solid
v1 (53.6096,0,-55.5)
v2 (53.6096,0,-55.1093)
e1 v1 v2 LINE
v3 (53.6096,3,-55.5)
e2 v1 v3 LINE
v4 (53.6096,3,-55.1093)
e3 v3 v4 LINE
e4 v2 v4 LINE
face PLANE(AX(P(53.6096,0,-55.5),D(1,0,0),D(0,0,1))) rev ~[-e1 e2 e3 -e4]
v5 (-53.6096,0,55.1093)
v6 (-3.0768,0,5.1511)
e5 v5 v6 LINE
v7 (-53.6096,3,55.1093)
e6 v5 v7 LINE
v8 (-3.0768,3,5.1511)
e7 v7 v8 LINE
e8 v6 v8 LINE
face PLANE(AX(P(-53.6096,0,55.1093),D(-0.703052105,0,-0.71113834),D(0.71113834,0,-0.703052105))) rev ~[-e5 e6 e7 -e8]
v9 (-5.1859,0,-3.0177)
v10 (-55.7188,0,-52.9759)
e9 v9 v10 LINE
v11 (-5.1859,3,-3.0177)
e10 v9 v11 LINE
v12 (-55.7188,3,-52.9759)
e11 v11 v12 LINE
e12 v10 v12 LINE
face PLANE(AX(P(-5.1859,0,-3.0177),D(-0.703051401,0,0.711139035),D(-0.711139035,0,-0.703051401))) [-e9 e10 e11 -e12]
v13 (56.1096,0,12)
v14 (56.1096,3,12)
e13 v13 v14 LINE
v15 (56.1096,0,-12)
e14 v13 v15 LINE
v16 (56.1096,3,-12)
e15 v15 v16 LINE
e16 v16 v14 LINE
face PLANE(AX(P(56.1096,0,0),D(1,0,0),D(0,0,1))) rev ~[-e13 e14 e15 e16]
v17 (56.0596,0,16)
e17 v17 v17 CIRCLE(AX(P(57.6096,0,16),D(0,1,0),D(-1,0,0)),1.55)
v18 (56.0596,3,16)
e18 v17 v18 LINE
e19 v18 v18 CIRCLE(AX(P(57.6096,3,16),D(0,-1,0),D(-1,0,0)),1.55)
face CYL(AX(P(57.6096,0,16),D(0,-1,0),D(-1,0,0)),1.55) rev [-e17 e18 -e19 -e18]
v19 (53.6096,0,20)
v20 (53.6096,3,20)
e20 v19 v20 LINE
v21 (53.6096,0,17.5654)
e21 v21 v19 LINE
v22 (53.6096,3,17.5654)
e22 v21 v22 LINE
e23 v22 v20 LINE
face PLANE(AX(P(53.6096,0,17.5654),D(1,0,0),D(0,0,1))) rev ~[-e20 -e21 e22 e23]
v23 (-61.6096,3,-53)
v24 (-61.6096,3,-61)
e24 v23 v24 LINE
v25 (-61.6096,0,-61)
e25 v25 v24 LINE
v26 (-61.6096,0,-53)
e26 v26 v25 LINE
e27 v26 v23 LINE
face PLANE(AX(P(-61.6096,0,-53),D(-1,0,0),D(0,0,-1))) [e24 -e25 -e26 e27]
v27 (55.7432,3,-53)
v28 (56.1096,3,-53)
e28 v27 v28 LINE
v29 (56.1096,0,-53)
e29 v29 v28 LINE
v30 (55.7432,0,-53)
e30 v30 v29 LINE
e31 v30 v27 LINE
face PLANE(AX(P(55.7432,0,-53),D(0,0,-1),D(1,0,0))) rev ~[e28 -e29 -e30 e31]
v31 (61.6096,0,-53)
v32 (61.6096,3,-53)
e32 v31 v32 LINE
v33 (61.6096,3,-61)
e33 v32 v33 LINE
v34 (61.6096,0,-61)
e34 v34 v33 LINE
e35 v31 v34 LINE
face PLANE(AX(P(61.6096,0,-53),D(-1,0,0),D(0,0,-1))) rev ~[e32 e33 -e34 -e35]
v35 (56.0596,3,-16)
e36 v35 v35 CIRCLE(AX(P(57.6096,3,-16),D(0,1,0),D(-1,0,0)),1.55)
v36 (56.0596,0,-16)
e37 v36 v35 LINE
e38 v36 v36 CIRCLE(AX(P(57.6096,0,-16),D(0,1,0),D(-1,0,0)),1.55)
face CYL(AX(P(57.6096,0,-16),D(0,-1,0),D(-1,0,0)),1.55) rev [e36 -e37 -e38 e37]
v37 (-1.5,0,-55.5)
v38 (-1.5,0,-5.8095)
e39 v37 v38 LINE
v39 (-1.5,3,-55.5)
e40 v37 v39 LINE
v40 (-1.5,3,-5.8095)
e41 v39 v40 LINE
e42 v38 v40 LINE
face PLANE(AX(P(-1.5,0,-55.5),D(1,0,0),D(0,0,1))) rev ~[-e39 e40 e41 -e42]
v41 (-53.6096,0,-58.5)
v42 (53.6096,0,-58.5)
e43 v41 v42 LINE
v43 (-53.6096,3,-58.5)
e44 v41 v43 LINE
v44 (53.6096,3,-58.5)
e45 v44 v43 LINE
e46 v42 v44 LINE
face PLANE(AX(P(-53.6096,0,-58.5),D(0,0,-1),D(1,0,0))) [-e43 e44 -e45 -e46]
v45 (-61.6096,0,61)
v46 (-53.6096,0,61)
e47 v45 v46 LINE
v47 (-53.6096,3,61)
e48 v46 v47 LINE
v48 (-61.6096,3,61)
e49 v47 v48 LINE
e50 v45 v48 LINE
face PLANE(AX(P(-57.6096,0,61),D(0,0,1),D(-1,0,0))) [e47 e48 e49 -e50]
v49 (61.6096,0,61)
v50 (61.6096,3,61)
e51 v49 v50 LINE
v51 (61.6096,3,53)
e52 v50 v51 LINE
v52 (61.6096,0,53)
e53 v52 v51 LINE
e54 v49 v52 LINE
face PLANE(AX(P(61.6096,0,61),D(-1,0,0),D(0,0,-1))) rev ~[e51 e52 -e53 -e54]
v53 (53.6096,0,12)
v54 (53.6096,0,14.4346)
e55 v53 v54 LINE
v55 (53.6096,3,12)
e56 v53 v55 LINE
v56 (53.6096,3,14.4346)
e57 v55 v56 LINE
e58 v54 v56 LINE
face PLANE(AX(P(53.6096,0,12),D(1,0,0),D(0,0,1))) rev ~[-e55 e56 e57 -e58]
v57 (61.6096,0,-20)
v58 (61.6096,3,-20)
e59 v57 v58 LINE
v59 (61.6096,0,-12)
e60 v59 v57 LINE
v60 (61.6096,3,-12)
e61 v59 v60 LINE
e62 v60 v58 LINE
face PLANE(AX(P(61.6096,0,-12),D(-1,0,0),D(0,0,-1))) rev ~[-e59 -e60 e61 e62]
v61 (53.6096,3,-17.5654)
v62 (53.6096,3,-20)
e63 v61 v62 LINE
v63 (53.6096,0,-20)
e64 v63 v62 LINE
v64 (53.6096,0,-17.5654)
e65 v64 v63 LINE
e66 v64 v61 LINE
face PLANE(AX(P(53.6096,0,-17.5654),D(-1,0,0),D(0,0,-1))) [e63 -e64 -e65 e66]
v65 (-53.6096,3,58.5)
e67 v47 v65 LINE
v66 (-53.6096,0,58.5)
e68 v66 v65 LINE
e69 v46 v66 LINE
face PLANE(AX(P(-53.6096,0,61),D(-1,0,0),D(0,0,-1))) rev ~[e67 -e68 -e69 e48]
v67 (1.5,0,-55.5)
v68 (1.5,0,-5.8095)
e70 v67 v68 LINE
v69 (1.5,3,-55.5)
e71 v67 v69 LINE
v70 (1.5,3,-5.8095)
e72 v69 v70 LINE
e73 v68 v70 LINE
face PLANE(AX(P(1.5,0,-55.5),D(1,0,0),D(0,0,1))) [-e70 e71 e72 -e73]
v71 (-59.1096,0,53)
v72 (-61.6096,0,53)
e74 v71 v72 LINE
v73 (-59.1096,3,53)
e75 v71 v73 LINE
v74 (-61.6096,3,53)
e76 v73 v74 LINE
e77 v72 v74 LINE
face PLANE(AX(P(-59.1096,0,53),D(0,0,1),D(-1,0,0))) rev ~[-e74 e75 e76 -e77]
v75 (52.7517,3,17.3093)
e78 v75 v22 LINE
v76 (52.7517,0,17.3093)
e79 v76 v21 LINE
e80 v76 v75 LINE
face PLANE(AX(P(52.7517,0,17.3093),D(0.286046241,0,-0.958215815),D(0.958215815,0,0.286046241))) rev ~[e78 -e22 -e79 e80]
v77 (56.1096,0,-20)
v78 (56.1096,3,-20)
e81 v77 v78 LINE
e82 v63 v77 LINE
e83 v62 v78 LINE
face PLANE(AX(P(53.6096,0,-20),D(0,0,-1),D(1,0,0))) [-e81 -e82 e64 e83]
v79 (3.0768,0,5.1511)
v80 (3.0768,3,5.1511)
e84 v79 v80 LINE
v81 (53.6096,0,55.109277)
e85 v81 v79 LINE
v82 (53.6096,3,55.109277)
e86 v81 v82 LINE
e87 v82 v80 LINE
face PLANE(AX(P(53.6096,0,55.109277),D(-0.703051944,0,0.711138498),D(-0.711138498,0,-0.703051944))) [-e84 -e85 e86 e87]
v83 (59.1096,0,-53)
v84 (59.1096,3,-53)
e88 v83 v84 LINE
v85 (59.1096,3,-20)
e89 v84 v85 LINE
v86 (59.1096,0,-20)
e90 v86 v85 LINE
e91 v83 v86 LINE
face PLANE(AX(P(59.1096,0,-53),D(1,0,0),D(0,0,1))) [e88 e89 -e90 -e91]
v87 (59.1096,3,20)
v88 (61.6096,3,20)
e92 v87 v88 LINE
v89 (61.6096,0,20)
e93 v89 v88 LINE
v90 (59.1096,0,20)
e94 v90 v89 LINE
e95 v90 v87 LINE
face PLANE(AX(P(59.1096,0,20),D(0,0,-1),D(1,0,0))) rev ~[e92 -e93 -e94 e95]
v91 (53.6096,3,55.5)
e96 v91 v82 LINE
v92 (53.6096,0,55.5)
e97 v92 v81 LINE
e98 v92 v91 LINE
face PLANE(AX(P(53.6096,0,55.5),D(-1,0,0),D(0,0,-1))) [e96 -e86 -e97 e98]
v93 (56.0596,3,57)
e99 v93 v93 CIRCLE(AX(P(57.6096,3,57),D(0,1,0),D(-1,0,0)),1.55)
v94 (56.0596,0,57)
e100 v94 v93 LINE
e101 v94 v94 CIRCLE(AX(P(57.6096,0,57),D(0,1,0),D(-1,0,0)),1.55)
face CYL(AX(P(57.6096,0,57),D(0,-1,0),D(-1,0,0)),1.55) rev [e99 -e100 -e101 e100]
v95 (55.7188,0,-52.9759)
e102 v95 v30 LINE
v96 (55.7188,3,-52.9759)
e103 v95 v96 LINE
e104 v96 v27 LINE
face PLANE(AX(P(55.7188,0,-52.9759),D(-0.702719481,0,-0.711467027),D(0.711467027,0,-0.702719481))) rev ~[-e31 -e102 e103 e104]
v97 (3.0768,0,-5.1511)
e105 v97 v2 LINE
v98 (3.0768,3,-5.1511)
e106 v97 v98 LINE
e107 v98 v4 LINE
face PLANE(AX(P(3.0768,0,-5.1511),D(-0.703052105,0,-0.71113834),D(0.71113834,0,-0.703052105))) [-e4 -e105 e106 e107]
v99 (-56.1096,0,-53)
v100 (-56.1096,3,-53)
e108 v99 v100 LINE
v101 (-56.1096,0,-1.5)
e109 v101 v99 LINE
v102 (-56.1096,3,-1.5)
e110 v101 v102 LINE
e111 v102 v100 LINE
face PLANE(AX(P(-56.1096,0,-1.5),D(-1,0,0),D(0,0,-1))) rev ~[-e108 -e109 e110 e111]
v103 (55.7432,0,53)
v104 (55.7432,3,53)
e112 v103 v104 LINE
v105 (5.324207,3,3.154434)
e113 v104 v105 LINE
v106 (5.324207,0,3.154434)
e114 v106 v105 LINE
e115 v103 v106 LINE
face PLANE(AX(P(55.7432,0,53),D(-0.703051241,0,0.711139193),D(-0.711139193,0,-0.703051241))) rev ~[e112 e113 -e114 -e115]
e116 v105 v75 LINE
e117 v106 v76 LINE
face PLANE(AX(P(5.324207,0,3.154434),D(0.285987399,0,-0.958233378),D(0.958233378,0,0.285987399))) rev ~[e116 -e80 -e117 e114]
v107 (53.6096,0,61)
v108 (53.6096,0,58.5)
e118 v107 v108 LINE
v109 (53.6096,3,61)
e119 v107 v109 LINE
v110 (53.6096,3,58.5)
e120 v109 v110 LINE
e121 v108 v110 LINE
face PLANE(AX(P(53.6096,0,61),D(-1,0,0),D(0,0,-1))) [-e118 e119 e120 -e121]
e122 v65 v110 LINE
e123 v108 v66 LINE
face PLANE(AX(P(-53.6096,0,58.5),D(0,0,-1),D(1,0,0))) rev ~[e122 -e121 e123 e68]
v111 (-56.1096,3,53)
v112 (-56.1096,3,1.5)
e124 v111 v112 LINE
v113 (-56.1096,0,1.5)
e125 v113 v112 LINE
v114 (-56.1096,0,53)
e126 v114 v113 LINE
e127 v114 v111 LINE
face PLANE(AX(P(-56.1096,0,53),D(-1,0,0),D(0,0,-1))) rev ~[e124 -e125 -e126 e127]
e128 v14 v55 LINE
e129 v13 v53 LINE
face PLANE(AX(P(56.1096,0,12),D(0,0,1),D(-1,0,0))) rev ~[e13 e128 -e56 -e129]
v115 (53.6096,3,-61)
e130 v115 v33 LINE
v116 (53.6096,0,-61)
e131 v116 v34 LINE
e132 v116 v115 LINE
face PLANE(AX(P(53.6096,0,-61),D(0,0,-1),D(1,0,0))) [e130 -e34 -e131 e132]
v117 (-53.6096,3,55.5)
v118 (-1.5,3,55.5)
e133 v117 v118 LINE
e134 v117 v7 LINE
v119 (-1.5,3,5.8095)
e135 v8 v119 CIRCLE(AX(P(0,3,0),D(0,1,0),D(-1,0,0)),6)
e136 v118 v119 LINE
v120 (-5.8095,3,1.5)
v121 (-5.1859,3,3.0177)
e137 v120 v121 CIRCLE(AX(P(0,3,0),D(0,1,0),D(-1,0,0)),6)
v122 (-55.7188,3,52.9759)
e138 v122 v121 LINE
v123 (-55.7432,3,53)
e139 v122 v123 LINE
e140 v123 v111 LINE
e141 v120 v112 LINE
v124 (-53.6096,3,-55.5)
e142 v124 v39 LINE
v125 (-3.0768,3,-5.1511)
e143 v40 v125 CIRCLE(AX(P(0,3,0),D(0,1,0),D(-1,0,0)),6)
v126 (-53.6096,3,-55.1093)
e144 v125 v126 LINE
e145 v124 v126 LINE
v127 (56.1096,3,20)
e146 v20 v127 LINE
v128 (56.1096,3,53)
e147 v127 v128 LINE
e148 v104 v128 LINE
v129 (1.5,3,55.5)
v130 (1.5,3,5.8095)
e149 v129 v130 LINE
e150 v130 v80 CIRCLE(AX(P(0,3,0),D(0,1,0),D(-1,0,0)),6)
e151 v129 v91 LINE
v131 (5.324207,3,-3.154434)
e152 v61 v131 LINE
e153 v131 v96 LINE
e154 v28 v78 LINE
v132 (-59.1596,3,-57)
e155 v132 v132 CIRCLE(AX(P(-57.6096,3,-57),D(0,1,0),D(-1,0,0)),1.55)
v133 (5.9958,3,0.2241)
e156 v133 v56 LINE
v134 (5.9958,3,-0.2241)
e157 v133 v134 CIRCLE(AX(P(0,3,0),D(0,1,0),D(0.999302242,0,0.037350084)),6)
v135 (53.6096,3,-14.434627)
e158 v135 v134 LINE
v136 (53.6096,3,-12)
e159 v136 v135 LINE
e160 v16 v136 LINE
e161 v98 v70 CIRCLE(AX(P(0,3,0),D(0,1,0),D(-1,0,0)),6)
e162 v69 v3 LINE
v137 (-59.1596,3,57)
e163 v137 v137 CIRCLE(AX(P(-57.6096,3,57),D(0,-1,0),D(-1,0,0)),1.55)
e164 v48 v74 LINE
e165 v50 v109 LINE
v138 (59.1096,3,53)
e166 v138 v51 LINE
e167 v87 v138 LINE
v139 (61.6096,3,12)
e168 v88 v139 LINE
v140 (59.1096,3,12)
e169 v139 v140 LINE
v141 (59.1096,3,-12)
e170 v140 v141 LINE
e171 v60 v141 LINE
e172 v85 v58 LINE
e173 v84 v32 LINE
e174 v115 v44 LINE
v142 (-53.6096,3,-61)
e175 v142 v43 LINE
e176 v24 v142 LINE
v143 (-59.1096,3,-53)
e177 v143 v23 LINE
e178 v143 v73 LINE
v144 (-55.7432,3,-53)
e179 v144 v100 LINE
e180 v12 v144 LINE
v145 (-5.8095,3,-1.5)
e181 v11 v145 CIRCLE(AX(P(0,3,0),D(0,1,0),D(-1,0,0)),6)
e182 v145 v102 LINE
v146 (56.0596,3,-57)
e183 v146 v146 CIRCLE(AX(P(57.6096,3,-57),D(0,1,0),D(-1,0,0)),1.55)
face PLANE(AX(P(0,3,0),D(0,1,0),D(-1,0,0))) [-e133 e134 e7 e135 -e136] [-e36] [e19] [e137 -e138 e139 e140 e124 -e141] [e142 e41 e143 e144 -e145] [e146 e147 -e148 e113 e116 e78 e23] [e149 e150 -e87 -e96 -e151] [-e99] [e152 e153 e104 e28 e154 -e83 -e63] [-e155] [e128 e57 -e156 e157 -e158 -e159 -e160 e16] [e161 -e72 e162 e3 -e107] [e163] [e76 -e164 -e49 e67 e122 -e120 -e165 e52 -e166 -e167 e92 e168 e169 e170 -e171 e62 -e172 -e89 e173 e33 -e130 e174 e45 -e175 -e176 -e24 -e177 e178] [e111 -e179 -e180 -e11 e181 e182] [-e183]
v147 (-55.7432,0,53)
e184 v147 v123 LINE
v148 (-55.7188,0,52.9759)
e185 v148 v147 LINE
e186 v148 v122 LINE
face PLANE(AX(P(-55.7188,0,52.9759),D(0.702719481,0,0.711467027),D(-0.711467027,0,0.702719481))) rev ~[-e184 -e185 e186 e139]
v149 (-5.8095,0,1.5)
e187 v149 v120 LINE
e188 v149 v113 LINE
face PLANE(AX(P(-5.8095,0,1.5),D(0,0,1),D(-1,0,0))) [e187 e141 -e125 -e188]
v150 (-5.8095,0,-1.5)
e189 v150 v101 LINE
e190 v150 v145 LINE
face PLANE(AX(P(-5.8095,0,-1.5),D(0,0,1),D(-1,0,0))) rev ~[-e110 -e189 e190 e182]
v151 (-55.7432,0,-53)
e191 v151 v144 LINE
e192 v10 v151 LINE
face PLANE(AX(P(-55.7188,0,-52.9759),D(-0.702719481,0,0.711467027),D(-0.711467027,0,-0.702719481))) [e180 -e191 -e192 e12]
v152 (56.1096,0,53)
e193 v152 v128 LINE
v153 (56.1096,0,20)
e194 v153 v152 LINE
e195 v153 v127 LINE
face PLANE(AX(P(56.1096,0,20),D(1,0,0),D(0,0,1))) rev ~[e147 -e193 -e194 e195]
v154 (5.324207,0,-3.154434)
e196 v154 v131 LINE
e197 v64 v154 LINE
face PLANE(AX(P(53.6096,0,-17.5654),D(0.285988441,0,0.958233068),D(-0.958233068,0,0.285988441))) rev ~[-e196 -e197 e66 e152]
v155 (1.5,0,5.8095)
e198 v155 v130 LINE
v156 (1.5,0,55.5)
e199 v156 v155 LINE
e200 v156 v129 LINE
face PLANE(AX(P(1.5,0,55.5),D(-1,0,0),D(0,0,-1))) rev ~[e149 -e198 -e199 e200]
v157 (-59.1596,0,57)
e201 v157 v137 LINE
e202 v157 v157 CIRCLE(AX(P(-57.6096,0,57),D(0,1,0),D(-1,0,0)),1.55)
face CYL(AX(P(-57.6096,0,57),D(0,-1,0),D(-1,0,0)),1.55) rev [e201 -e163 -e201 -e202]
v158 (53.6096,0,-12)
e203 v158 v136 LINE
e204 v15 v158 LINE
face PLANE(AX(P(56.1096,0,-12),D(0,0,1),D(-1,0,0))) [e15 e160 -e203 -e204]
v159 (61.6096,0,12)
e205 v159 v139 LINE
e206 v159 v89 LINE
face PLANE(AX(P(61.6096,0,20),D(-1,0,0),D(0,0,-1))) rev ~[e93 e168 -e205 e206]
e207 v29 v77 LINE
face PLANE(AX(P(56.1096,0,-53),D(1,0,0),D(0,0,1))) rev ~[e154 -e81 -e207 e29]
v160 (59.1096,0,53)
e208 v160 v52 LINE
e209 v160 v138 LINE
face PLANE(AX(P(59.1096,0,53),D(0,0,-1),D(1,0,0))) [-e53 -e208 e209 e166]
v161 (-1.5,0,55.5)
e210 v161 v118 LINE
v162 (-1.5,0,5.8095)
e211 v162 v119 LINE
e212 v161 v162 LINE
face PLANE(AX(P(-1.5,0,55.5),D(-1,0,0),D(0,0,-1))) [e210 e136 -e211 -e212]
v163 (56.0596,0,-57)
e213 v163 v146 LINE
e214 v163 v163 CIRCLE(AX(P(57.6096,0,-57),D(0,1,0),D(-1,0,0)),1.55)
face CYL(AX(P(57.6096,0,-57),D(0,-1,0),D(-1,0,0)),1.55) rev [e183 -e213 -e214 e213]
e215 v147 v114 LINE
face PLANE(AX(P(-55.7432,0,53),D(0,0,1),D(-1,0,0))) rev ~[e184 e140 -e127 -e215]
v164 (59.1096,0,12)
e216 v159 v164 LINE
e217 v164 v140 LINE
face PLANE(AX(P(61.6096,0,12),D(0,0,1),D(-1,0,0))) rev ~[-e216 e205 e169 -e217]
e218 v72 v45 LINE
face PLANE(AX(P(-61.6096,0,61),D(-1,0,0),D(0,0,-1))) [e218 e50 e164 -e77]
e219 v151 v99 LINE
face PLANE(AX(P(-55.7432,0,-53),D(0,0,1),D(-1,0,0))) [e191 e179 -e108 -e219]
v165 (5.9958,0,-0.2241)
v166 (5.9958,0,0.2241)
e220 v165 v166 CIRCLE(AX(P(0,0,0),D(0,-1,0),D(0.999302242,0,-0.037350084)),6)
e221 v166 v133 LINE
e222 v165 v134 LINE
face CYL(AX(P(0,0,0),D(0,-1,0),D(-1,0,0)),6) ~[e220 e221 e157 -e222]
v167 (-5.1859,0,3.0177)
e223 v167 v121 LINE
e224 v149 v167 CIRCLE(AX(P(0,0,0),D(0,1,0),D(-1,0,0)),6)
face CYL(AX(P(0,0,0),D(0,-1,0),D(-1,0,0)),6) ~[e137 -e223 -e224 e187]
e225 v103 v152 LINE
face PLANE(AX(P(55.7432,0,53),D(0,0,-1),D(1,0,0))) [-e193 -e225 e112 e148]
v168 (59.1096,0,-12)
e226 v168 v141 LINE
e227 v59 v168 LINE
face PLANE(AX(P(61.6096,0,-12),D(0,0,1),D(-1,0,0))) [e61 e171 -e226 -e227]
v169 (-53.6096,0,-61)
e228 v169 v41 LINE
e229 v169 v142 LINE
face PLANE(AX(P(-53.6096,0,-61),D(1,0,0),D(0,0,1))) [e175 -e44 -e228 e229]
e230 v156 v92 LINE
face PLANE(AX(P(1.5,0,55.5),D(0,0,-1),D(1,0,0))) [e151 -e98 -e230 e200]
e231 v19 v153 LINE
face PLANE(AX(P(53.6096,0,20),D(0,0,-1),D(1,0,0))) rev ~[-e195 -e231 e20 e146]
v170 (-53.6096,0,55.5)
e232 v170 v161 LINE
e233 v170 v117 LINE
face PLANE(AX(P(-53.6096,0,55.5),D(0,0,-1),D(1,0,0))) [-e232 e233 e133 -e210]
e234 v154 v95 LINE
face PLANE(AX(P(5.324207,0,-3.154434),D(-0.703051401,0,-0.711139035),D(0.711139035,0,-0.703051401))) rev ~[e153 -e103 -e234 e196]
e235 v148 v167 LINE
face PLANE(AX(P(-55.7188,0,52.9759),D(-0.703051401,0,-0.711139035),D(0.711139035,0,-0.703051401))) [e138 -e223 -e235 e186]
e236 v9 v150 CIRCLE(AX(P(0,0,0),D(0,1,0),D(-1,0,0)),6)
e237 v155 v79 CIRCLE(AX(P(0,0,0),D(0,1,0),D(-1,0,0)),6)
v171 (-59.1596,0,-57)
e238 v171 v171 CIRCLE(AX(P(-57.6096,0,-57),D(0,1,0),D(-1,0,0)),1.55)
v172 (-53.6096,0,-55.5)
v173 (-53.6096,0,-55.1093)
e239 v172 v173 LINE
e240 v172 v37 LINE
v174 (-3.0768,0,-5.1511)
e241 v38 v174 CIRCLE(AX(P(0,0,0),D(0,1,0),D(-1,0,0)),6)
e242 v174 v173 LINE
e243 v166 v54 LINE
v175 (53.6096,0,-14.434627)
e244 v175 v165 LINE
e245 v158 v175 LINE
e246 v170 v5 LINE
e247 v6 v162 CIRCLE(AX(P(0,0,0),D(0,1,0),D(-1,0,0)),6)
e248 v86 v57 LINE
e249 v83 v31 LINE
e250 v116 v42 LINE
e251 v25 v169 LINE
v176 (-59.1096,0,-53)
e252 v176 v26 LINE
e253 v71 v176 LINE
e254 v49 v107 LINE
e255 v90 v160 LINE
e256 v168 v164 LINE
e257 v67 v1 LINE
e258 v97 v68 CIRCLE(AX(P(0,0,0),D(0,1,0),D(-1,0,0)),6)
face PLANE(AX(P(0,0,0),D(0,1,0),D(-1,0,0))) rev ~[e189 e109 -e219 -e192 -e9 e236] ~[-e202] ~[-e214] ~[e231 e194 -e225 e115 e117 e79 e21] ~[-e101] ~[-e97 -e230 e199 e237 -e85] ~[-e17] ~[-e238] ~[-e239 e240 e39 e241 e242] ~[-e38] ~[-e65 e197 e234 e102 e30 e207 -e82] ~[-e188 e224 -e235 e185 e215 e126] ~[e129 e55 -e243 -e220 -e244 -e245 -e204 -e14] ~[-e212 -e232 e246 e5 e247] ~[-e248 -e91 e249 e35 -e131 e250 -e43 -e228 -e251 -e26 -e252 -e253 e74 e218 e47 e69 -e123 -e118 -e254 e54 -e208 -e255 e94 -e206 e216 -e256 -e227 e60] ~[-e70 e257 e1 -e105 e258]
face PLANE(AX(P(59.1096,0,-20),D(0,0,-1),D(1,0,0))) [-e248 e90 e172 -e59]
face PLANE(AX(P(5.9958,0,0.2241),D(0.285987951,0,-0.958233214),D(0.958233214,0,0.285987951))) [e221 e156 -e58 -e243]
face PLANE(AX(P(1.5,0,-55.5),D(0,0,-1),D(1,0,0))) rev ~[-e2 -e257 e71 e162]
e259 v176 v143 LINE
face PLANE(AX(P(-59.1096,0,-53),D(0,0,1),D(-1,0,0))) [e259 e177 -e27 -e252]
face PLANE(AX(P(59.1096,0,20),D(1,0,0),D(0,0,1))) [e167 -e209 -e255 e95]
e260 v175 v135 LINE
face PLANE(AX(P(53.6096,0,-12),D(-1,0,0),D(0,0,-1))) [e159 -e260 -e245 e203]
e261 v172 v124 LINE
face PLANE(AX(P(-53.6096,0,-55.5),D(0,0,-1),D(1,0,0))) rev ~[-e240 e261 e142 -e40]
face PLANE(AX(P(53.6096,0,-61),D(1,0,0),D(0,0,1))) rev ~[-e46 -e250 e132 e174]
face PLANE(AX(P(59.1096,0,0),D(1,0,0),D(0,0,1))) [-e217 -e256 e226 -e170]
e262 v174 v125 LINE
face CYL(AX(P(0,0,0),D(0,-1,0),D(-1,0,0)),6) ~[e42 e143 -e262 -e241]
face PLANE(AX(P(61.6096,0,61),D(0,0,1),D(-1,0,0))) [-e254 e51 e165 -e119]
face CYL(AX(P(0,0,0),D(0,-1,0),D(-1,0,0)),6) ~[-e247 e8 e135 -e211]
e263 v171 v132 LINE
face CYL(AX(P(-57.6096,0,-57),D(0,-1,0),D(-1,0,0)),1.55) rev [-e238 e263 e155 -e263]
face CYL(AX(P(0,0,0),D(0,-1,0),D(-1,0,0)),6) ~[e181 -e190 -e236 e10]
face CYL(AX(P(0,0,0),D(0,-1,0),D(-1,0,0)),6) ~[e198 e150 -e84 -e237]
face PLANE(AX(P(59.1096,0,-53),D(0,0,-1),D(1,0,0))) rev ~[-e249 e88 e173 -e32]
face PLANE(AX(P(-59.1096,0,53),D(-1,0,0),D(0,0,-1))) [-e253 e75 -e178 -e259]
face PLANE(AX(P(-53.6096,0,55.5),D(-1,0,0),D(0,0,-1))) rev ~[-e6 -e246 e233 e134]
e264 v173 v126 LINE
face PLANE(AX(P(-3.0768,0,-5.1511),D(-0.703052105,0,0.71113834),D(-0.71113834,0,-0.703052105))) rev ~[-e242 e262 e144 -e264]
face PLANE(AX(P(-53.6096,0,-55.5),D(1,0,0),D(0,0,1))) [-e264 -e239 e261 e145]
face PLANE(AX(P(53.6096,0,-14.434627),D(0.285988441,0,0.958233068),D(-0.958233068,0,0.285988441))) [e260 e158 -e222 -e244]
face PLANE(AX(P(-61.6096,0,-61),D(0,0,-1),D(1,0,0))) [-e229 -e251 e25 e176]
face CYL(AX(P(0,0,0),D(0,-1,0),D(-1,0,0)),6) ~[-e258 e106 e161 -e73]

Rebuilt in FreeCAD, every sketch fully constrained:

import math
import FreeCAD as App
import Part
import Sketcher


def add_polygon(sketch, points):
    """Adds a closed chain of lines whose ends are joined by coincident constraints."""
    first, n = sketch.GeometryCount, len(points)
    for a, b in zip(points, points[1:] + points[:1]):
        sketch.addGeometry(Part.LineSegment(App.Vector(*a, 0), App.Vector(*b, 0)), False)
    for i in range(n):
        sketch.addConstraint(Sketcher.Constraint("Coincident", first + i, 2, first + (i + 1) % n, 1))

doc = App.newDocument("Part")
params = doc.addObject("Spreadsheet::Sheet", "Params")
for row, (alias, value) in enumerate([
    ("sketch1_radius", "6 mm"),
    ("sketch1_diameter", "3.1 mm"),
    ("sketch1_width", "8 mm"),
    ("sketch1_height", "33 mm"),
    ("sketch1_width2", "2.5 mm"),
    ("pad1_length", "3 mm"),
], start=1):
    params.set(f"A{row}", alias)
    params.set(f"B{row}", "=" + value)
    params.setAlias(f"B{row}", alias)

body = doc.addObject("PartDesign::Body", "Body")

# Sketch on XZ plane
sketch1 = body.newObject("Sketcher::SketchObject", "Sketch")
sketch1.AttachmentSupport = (doc.getObject("XZ_Plane"), [""])
sketch1.MapMode = "FlatFace"
add_polygon(sketch1, [(-61.6096, 61), (-53.6096, 61), (-53.6096, 58.5), (53.6096, 58.5), (53.6096, 61), (61.6096, 61), (61.6096, 53), (59.1096, 53), (59.1096, 20), (61.6096, 20), (61.6096, 12), (59.1096, 12), (59.1096, -12), (61.6096, -12), (61.6096, -20), (59.1096, -20), (59.1096, -53), (61.6096, -53), (61.6096, -61), (53.6096, -61), (53.6096, -58.5), (-53.6096, -58.5), (-53.6096, -61), (-61.6096, -61), (-61.6096, -53), (-59.1096, -53), (-59.1096, 53), (-61.6096, 53)])  # lines 0-27
sketch1.addGeometry(Part.Circle(App.Vector(-57.6096, 57, 0), App.Vector(0, 0, 1), 1.55), False)  # 28
sketch1.addGeometry(Part.LineSegment(App.Vector(-55.7432, 53, 0), App.Vector(-56.1096, 53, 0)), False)  # 29
sketch1.addGeometry(Part.LineSegment(App.Vector(-56.1096, 53, 0), App.Vector(-56.1096, 1.5, 0)), False)  # 30
sketch1.addGeometry(Part.LineSegment(App.Vector(-56.1096, 1.5, 0), App.Vector(-5.8095, 1.5, 0)), False)  # 31
sketch1.addGeometry(Part.ArcOfCircle(Part.Circle(App.Vector(0, 0, 0), App.Vector(0, 0, 1), 6), math.radians(149.80467), math.radians(165.522547)), False)  # 32
sketch1.addGeometry(Part.LineSegment(App.Vector(-5.1859, 3.0177, 0), App.Vector(-55.7188, 52.9759, 0)), False)  # 33
sketch1.addGeometry(Part.LineSegment(App.Vector(-55.7188, 52.9759, 0), App.Vector(-55.7432, 53, 0)), False)  # 34
sketch1.addGeometry(Part.LineSegment(App.Vector(-53.6096, 55.5, 0), App.Vector(-53.6096, 55.1093, 0)), False)  # 35
sketch1.addGeometry(Part.LineSegment(App.Vector(-53.6096, 55.1093, 0), App.Vector(-3.0768, 5.1511, 0)), False)  # 36
sketch1.addGeometry(Part.ArcOfCircle(Part.Circle(App.Vector(0, 0, 0), App.Vector(0, 0, 1), 6), math.radians(104.477453), math.radians(120.850265)), False)  # 37
sketch1.addGeometry(Part.LineSegment(App.Vector(-1.5, 5.8095, 0), App.Vector(-1.5, 55.5, 0)), False)  # 38
sketch1.addGeometry(Part.LineSegment(App.Vector(-1.5, 55.5, 0), App.Vector(-53.6096, 55.5, 0)), False)  # 39
sketch1.addGeometry(Part.LineSegment(App.Vector(-53.6096, -55.1093, 0), App.Vector(-53.6096, -55.5, 0)), False)  # 40
sketch1.addGeometry(Part.LineSegment(App.Vector(-53.6096, -55.5, 0), App.Vector(-1.5, -55.5, 0)), False)  # 41
sketch1.addGeometry(Part.LineSegment(App.Vector(-1.5, -55.5, 0), App.Vector(-1.5, -5.8095, 0)), False)  # 42
sketch1.addGeometry(Part.ArcOfCircle(Part.Circle(App.Vector(0, 0, 0), App.Vector(0, 0, 1), 6), math.radians(-120.850265), math.radians(-104.477453)), False)  # 43
sketch1.addGeometry(Part.LineSegment(App.Vector(-3.0768, -5.1511, 0), App.Vector(-53.6096, -55.1093, 0)), False)  # 44
sketch1.addGeometry(Part.LineSegment(App.Vector(-56.1096, -53, 0), App.Vector(-55.7432, -53, 0)), False)  # 45
sketch1.addGeometry(Part.LineSegment(App.Vector(-55.7432, -53, 0), App.Vector(-55.7188, -52.9759, 0)), False)  # 46
sketch1.addGeometry(Part.LineSegment(App.Vector(-55.7188, -52.9759, 0), App.Vector(-5.1859, -3.0177, 0)), False)  # 47
sketch1.addGeometry(Part.ArcOfCircle(Part.Circle(App.Vector(0, 0, 0), App.Vector(0, 0, 1), 6), math.radians(-165.522547), math.radians(-149.80467)), False)  # 48
sketch1.addGeometry(Part.LineSegment(App.Vector(-5.8095, -1.5, 0), App.Vector(-56.1096, -1.5, 0)), False)  # 49
sketch1.addGeometry(Part.LineSegment(App.Vector(-56.1096, -1.5, 0), App.Vector(-56.1096, -53, 0)), False)  # 50
sketch1.addGeometry(Part.Circle(App.Vector(-57.6096, -57, 0), App.Vector(0, 0, 1), 1.55), False)  # 51
sketch1.addGeometry(Part.LineSegment(App.Vector(53.6096, 55.5, 0), App.Vector(1.5, 55.5, 0)), False)  # 52
sketch1.addGeometry(Part.LineSegment(App.Vector(1.5, 55.5, 0), App.Vector(1.5, 5.8095, 0)), False)  # 53
sketch1.addGeometry(Part.ArcOfCircle(Part.Circle(App.Vector(0, 0, 0), App.Vector(0, 0, 1), 6), math.radians(59.149735), math.radians(75.522547)), False)  # 54
sketch1.addGeometry(Part.LineSegment(App.Vector(3.0768, 5.1511, 0), App.Vector(53.6096, 55.109277, 0)), False)  # 55
sketch1.addGeometry(Part.LineSegment(App.Vector(53.6096, 55.109277, 0), App.Vector(53.6096, 55.5, 0)), False)  # 56
sketch1.addGeometry(Part.Circle(App.Vector(57.6096, 57, 0), App.Vector(0, 0, 1), 1.55), False)  # 57
add_polygon(sketch1, [(56.1096, 53), (55.7432, 53), (5.324207, 3.154434), (52.7517, 17.3093), (53.6096, 17.5654), (53.6096, 20), (56.1096, 20)])  # lines 58-64
sketch1.addGeometry(Part.LineSegment(App.Vector(1.5, -55.5, 0), App.Vector(53.6096, -55.5, 0)), False)  # 65
sketch1.addGeometry(Part.LineSegment(App.Vector(53.6096, -55.5, 0), App.Vector(53.6096, -55.1093, 0)), False)  # 66
sketch1.addGeometry(Part.LineSegment(App.Vector(53.6096, -55.1093, 0), App.Vector(3.0768, -5.1511, 0)), False)  # 67
sketch1.addGeometry(Part.ArcOfCircle(Part.Circle(App.Vector(0, 0, 0), App.Vector(0, 0, 1), 6), math.radians(-75.522547), math.radians(-59.149735)), False)  # 68
sketch1.addGeometry(Part.LineSegment(App.Vector(1.5, -5.8095, 0), App.Vector(1.5, -55.5, 0)), False)  # 69
sketch1.addGeometry(Part.Circle(App.Vector(57.6096, 16, 0), App.Vector(0, 0, 1), 1.55), False)  # 70
add_polygon(sketch1, [(55.7432, -53), (56.1096, -53), (56.1096, -20), (53.6096, -20), (53.6096, -17.5654), (5.324207, -3.154434), (55.7188, -52.9759)])  # lines 71-77
sketch1.addGeometry(Part.Circle(App.Vector(57.6096, -57, 0), App.Vector(0, 0, 1), 1.55), False)  # 78
sketch1.addGeometry(Part.ArcOfCircle(Part.Circle(App.Vector(0, 0, 0), App.Vector(0, 0, 1), 6), math.radians(-2.1405), math.radians(2.1405)), False)  # 79
sketch1.addGeometry(Part.LineSegment(App.Vector(5.9958, -0.2241, 0), App.Vector(53.6096, -14.434627, 0)), False)  # 80
sketch1.addGeometry(Part.LineSegment(App.Vector(53.6096, -14.434627, 0), App.Vector(53.6096, -12, 0)), False)  # 81
sketch1.addGeometry(Part.LineSegment(App.Vector(53.6096, -12, 0), App.Vector(56.1096, -12, 0)), False)  # 82
sketch1.addGeometry(Part.LineSegment(App.Vector(56.1096, -12, 0), App.Vector(56.1096, 12, 0)), False)  # 83
sketch1.addGeometry(Part.LineSegment(App.Vector(56.1096, 12, 0), App.Vector(53.6096, 12, 0)), False)  # 84
sketch1.addGeometry(Part.LineSegment(App.Vector(53.6096, 12, 0), App.Vector(53.6096, 14.4346, 0)), False)  # 85
sketch1.addGeometry(Part.LineSegment(App.Vector(53.6096, 14.4346, 0), App.Vector(5.9958, 0.2241, 0)), False)  # 86
sketch1.addGeometry(Part.Circle(App.Vector(57.6096, -16, 0), App.Vector(0, 0, 1), 1.55), False)  # 87
sketch1.addConstraint(Sketcher.Constraint("Coincident", 29, 2, 30, 1))
sketch1.addConstraint(Sketcher.Constraint("Coincident", 30, 2, 31, 1))
sketch1.addConstraint(Sketcher.Constraint("Coincident", 31, 2, 32, 2))
sketch1.addConstraint(Sketcher.Constraint("Coincident", 32, 1, 33, 1))
sketch1.addConstraint(Sketcher.Constraint("Coincident", 33, 2, 34, 1))
sketch1.addConstraint(Sketcher.Constraint("Coincident", 34, 2, 29, 1))
sketch1.addConstraint(Sketcher.Constraint("Coincident", 35, 2, 36, 1))
sketch1.addConstraint(Sketcher.Constraint("Coincident", 36, 2, 37, 2))
sketch1.addConstraint(Sketcher.Constraint("Coincident", 37, 1, 38, 1))
sketch1.addConstraint(Sketcher.Constraint("Coincident", 38, 2, 39, 1))
sketch1.addConstraint(Sketcher.Constraint("Coincident", 39, 2, 35, 1))
sketch1.addConstraint(Sketcher.Constraint("Coincident", 40, 2, 41, 1))
sketch1.addConstraint(Sketcher.Constraint("Coincident", 41, 2, 42, 1))
sketch1.addConstraint(Sketcher.Constraint("Coincident", 42, 2, 43, 2))
sketch1.addConstraint(Sketcher.Constraint("Coincident", 43, 1, 44, 1))
sketch1.addConstraint(Sketcher.Constraint("Coincident", 44, 2, 40, 1))
sketch1.addConstraint(Sketcher.Constraint("Coincident", 45, 2, 46, 1))
sketch1.addConstraint(Sketcher.Constraint("Coincident", 46, 2, 47, 1))
sketch1.addConstraint(Sketcher.Constraint("Coincident", 47, 2, 48, 2))
sketch1.addConstraint(Sketcher.Constraint("Coincident", 48, 1, 49, 1))
sketch1.addConstraint(Sketcher.Constraint("Coincident", 49, 2, 50, 1))
sketch1.addConstraint(Sketcher.Constraint("Coincident", 50, 2, 45, 1))
sketch1.addConstraint(Sketcher.Constraint("Coincident", 52, 2, 53, 1))
sketch1.addConstraint(Sketcher.Constraint("Coincident", 53, 2, 54, 2))
sketch1.addConstraint(Sketcher.Constraint("Coincident", 54, 1, 55, 1))
sketch1.addConstraint(Sketcher.Constraint("Coincident", 55, 2, 56, 1))
sketch1.addConstraint(Sketcher.Constraint("Coincident", 56, 2, 52, 1))
sketch1.addConstraint(Sketcher.Constraint("Coincident", 65, 2, 66, 1))
sketch1.addConstraint(Sketcher.Constraint("Coincident", 66, 2, 67, 1))
sketch1.addConstraint(Sketcher.Constraint("Coincident", 67, 2, 68, 2))
sketch1.addConstraint(Sketcher.Constraint("Coincident", 68, 1, 69, 1))
sketch1.addConstraint(Sketcher.Constraint("Coincident", 69, 2, 65, 1))
sketch1.addConstraint(Sketcher.Constraint("Coincident", 79, 1, 80, 1))
sketch1.addConstraint(Sketcher.Constraint("Coincident", 80, 2, 81, 1))
sketch1.addConstraint(Sketcher.Constraint("Coincident", 81, 2, 82, 1))
sketch1.addConstraint(Sketcher.Constraint("Coincident", 82, 2, 83, 1))
sketch1.addConstraint(Sketcher.Constraint("Coincident", 83, 2, 84, 1))
sketch1.addConstraint(Sketcher.Constraint("Coincident", 84, 2, 85, 1))
sketch1.addConstraint(Sketcher.Constraint("Coincident", 85, 2, 86, 1))
sketch1.addConstraint(Sketcher.Constraint("Coincident", 86, 2, 79, 2))
sketch1.addConstraint(Sketcher.Constraint("Horizontal", 0))
sketch1.addConstraint(Sketcher.Constraint("Vertical", 1))
sketch1.addConstraint(Sketcher.Constraint("Horizontal", 2))
sketch1.addConstraint(Sketcher.Constraint("Vertical", 3))
sketch1.addConstraint(Sketcher.Constraint("Horizontal", 4))
sketch1.addConstraint(Sketcher.Constraint("Vertical", 5))
sketch1.addConstraint(Sketcher.Constraint("Horizontal", 6))
sketch1.addConstraint(Sketcher.Constraint("Vertical", 7))
sketch1.addConstraint(Sketcher.Constraint("Horizontal", 8))
sketch1.addConstraint(Sketcher.Constraint("Vertical", 9))
sketch1.addConstraint(Sketcher.Constraint("Horizontal", 10))
sketch1.addConstraint(Sketcher.Constraint("Vertical", 11))
sketch1.addConstraint(Sketcher.Constraint("Horizontal", 12))
sketch1.addConstraint(Sketcher.Constraint("Vertical", 13))
sketch1.addConstraint(Sketcher.Constraint("Horizontal", 14))
sketch1.addConstraint(Sketcher.Constraint("Vertical", 15))
sketch1.addConstraint(Sketcher.Constraint("Horizontal", 16))
sketch1.addConstraint(Sketcher.Constraint("Vertical", 17))
sketch1.addConstraint(Sketcher.Constraint("Horizontal", 18))
sketch1.addConstraint(Sketcher.Constraint("Vertical", 19))
sketch1.addConstraint(Sketcher.Constraint("Horizontal", 20))
sketch1.addConstraint(Sketcher.Constraint("Vertical", 21))
sketch1.addConstraint(Sketcher.Constraint("Horizontal", 22))
sketch1.addConstraint(Sketcher.Constraint("Vertical", 23))
sketch1.addConstraint(Sketcher.Constraint("Horizontal", 24))
sketch1.addConstraint(Sketcher.Constraint("Vertical", 25))
sketch1.addConstraint(Sketcher.Constraint("Horizontal", 26))
sketch1.addConstraint(Sketcher.Constraint("Vertical", 27))
sketch1.addConstraint(Sketcher.Constraint("Horizontal", 29))
sketch1.addConstraint(Sketcher.Constraint("Vertical", 30))
sketch1.addConstraint(Sketcher.Constraint("Horizontal", 31))
sketch1.addConstraint(Sketcher.Constraint("Vertical", 35))
sketch1.addConstraint(Sketcher.Constraint("Vertical", 38))
sketch1.addConstraint(Sketcher.Constraint("Horizontal", 39))
sketch1.addConstraint(Sketcher.Constraint("Vertical", 40))
sketch1.addConstraint(Sketcher.Constraint("Horizontal", 41))
sketch1.addConstraint(Sketcher.Constraint("Vertical", 42))
sketch1.addConstraint(Sketcher.Constraint("Horizontal", 45))
sketch1.addConstraint(Sketcher.Constraint("Horizontal", 49))
sketch1.addConstraint(Sketcher.Constraint("Vertical", 50))
sketch1.addConstraint(Sketcher.Constraint("Horizontal", 52))
sketch1.addConstraint(Sketcher.Constraint("Vertical", 53))
sketch1.addConstraint(Sketcher.Constraint("Vertical", 56))
sketch1.addConstraint(Sketcher.Constraint("Horizontal", 58))
sketch1.addConstraint(Sketcher.Constraint("Vertical", 62))
sketch1.addConstraint(Sketcher.Constraint("Horizontal", 63))
sketch1.addConstraint(Sketcher.Constraint("Vertical", 64))
sketch1.addConstraint(Sketcher.Constraint("Horizontal", 65))
sketch1.addConstraint(Sketcher.Constraint("Vertical", 66))
sketch1.addConstraint(Sketcher.Constraint("Vertical", 69))
sketch1.addConstraint(Sketcher.Constraint("Horizontal", 71))
sketch1.addConstraint(Sketcher.Constraint("Vertical", 72))
sketch1.addConstraint(Sketcher.Constraint("Horizontal", 73))
sketch1.addConstraint(Sketcher.Constraint("Vertical", 74))
sketch1.addConstraint(Sketcher.Constraint("Vertical", 81))
sketch1.addConstraint(Sketcher.Constraint("Horizontal", 82))
sketch1.addConstraint(Sketcher.Constraint("Vertical", 83))
sketch1.addConstraint(Sketcher.Constraint("Horizontal", 84))
sketch1.addConstraint(Sketcher.Constraint("Vertical", 85))
sketch1.addConstraint(Sketcher.Constraint("Coincident", 32, 3, -1, 1))
sketch1.addConstraint(Sketcher.Constraint("Coincident", 37, 3, -1, 1))
sketch1.addConstraint(Sketcher.Constraint("Coincident", 43, 3, -1, 1))
sketch1.addConstraint(Sketcher.Constraint("Coincident", 48, 3, -1, 1))
sketch1.addConstraint(Sketcher.Constraint("Coincident", 54, 3, -1, 1))
sketch1.addConstraint(Sketcher.Constraint("Coincident", 68, 3, -1, 1))
sketch1.addConstraint(Sketcher.Constraint("Coincident", 79, 3, -1, 1))
sketch1.addConstraint(Sketcher.Constraint("Equal", 32, 37))
sketch1.addConstraint(Sketcher.Constraint("Equal", 37, 43))
sketch1.addConstraint(Sketcher.Constraint("Equal", 43, 48))
sketch1.addConstraint(Sketcher.Constraint("Equal", 28, 51))
sketch1.addConstraint(Sketcher.Constraint("Equal", 48, 54))
sketch1.addConstraint(Sketcher.Constraint("Equal", 51, 57))
sketch1.addConstraint(Sketcher.Constraint("Equal", 54, 68))
sketch1.addConstraint(Sketcher.Constraint("Equal", 57, 70))
sketch1.addConstraint(Sketcher.Constraint("Equal", 70, 78))
sketch1.addConstraint(Sketcher.Constraint("Equal", 68, 79))
sketch1.addConstraint(Sketcher.Constraint("Equal", 78, 87))
sketch1.addConstraint(Sketcher.Constraint("Symmetric", 51, 3, 57, 3, -1, 1))
sketch1.addConstraint(Sketcher.Constraint("Symmetric", 28, 3, 78, 3, -1, 1))
sketch1.addConstraint(Sketcher.Constraint("Symmetric", 0, 2, 18, 2, -1, 1))
sketch1.addConstraint(Sketcher.Constraint("Symmetric", 2, 2, 20, 2, -1, 1))
sketch1.addConstraint(Sketcher.Constraint("Symmetric", 4, 2, 22, 2, -1, 1))
sketch1.addConstraint(Sketcher.Constraint("Symmetric", 6, 2, 24, 2, -1, 1))
sketch1.addConstraint(Sketcher.Constraint("Symmetric", 15, 2, 25, 2, -1, 1))
sketch1.addConstraint(Sketcher.Constraint("Symmetric", 41, 2, 52, 2, -1, 1))
sketch1.addConstraint(Sketcher.Constraint("Symmetric", 44, 2, 55, 2, -1, 1))
sketch1.addConstraint(Sketcher.Constraint("Symmetric", 45, 2, 58, 2, -1, 1))
sketch1.addConstraint(Sketcher.Constraint("Symmetric", 39, 2, 65, 2, -1, 1))
sketch1.addConstraint(Sketcher.Constraint("Symmetric", 29, 2, 71, 2, -1, 1))
sketch1.addConstraint(Sketcher.Constraint("Symmetric", 33, 2, 76, 2, -1, 1))
sketch1.addConstraint(Sketcher.Constraint("Symmetric", 28, 3, 57, 3, -2))
sketch1.addConstraint(Sketcher.Constraint("Symmetric", 0, 2, 3, 2, -2))
sketch1.addConstraint(Sketcher.Constraint("Symmetric", 16, 2, 23, 2, -2))
sketch1.addConstraint(Sketcher.Constraint("Symmetric", 38, 2, 52, 2, -2))
sketch1.addConstraint(Sketcher.Constraint("Symmetric", 35, 2, 55, 2, -2))
sketch1.addConstraint(Sketcher.Constraint("Symmetric", 34, 2, 58, 2, -2))
sketch1.addConstraint(Sketcher.Constraint("Symmetric", 46, 2, 76, 2, -2))
sketch1.addConstraint(Sketcher.Constraint("Symmetric", 70, 3, 87, 3, -1))
sketch1.addConstraint(Sketcher.Constraint("Symmetric", 9, 2, 12, 2, -1))
sketch1.addConstraint(Sketcher.Constraint("Symmetric", 30, 2, 49, 2, -1))
sketch1.addConstraint(Sketcher.Constraint("Symmetric", 63, 2, 72, 2, -1))
sketch1.addConstraint(Sketcher.Constraint("Symmetric", 61, 2, 74, 2, -1))
sketch1.addConstraint(Sketcher.Constraint("Symmetric", 59, 2, 75, 2, -1))
sketch1.addConstraint(Sketcher.Constraint("Symmetric", 81, 2, 84, 2, -1))
sketch1.addConstraint(Sketcher.Constraint("Parallel", 33, 34))
sketch1.addConstraint(Sketcher.Constraint("Parallel", 33, 36))
sketch1.addConstraint(Sketcher.Constraint("Parallel", 44, 47))
sketch1.addConstraint(Sketcher.Constraint("Parallel", 47, 55))
sketch1.addConstraint(Sketcher.Constraint("Parallel", 55, 59))
sketch1.addConstraint(Sketcher.Constraint("Parallel", 60, 61))
sketch1.addConstraint(Sketcher.Constraint("Parallel", 36, 67))
sketch1.addConstraint(Sketcher.Constraint("Parallel", 67, 76))
sketch1.addConstraint(Sketcher.Constraint("Parallel", 76, 77))
sketch1.addConstraint(Sketcher.Constraint("Parallel", 75, 80))
sketch1.addConstraint(Sketcher.Constraint("Parallel", 61, 86))
sketch1.addConstraint(Sketcher.Constraint("Horizontal", 26, 2, 29, 2))
sketch1.addConstraint(Sketcher.Constraint("Horizontal", 8, 2, 62, 2))
sketch1.addConstraint(Sketcher.Constraint("Horizontal", 44, 2, 66, 2))
sketch1.addConstraint(Sketcher.Constraint("Horizontal", 42, 2, 68, 1))
sketch1.addConstraint(Sketcher.Constraint("Horizontal", 14, 2, 72, 2))
sketch1.addConstraint(Sketcher.Constraint("Horizontal", 12, 2, 81, 2))
sketch1.addConstraint(Sketcher.Constraint("Vertical", 57, 3, 70, 3))
sketch1.addConstraint(Sketcher.Constraint("Vertical", 5, 2, 8, 2))
sketch1.addConstraint(Sketcher.Constraint("Vertical", 7, 2, 10, 2))
sketch1.addConstraint(Sketcher.Constraint("Vertical", 23, 2, 26, 2))
sketch1.addConstraint(Sketcher.Constraint("Vertical", 21, 2, 35, 2))
sketch1.addConstraint(Sketcher.Constraint("Vertical", 56, 2, 61, 2))
sketch1.addConstraint(Sketcher.Constraint("Vertical", 74, 2, 80, 2))
sketch1.addConstraint(Sketcher.Constraint("Vertical", 72, 2, 82, 2))
sketch1.addConstraint(Sketcher.Constraint("Vertical", 79, 1, 86, 2))
sketch1.addConstraint(Sketcher.Constraint("Equal", 26, 63))
sketch1.addConstraint(Sketcher.Constraint("Equal", 84, 1))
sketch1.addConstraint(Sketcher.Constraint("Equal", 22, 5))
sketch1.addConstraint(Sketcher.Constraint("Equal", 5, 9))
sketch1.addConstraint(Sketcher.Constraint("Equal", 74, 81))
sketch1.addConstraint(Sketcher.Constraint("Equal", 33, 36))
sketch1.addConstraint(Sketcher.Constraint("Radius", 32, 6.0))
sketch1.addConstraint(Sketcher.Constraint("Diameter", 28, 3.1))
sketch1.addConstraint(Sketcher.Constraint("DistanceX", 0, 1, 0, 2, 8.0))
sketch1.addConstraint(Sketcher.Constraint("DistanceY", -1, 1, 9, 2, 12.0))
sketch1.addConstraint(Sketcher.Constraint("DistanceY", 7, 2, 7, 1, 33.0))
sketch1.addConstraint(Sketcher.Constraint("DistanceX", 6, 2, 6, 1, 2.5))
sketch1.addConstraint(Sketcher.Constraint("DistanceX", 31, 1, 31, 2, 50.3))
sketch1.addConstraint(Sketcher.Constraint("DistanceY", 30, 2, 30, 1, 51.5))
sketch1.addConstraint(Sketcher.Constraint("DistanceY", -1, 1, 28, 3, 57.0))
sketch1.addConstraint(Sketcher.Constraint("DistanceY", -1, 1, 70, 3, 16.0))
sketch1.addConstraint(Sketcher.Constraint("DistanceX", 37, 1, -1, 1, 1.5))
sketch1.addConstraint(Sketcher.Constraint("DistanceY", -1, 1, 38, 2, 55.5))
sketch1.addConstraint(Sketcher.Constraint("Distance", 75, 50.39))
sketch1.addConstraint(Sketcher.Constraint("Distance", 33, 71.059))
sketch1.addConstraint(Sketcher.Constraint("Distance", 59, 70.899))
sketch1.addConstraint(Sketcher.Constraint("DistanceX", 29, 2, 29, 1, 0.3664))
sketch1.addConstraint(Sketcher.Constraint("DistanceY", 35, 2, 35, 1, 0.3907))
sketch1.addConstraint(Sketcher.Constraint("Distance", 60, 49.4947))
sketch1.addConstraint(Sketcher.Constraint("DistanceX", 28, 3, -1, 1, 57.6096))
sketch1.setExpression("Constraints[218]", "Params.sketch1_radius")
sketch1.setExpression("Constraints[219]", "Params.sketch1_diameter")
sketch1.setExpression("Constraints[220]", "Params.sketch1_width")
sketch1.setExpression("Constraints[222]", "Params.sketch1_height")
sketch1.setExpression("Constraints[223]", "Params.sketch1_width2")
pad1 = body.newObject("PartDesign::Pad", "Pad")
pad1.Profile = sketch1
pad1.setExpression("Length", "Params.pad1_length")
pad1.Reversed = True

doc.recompute()
